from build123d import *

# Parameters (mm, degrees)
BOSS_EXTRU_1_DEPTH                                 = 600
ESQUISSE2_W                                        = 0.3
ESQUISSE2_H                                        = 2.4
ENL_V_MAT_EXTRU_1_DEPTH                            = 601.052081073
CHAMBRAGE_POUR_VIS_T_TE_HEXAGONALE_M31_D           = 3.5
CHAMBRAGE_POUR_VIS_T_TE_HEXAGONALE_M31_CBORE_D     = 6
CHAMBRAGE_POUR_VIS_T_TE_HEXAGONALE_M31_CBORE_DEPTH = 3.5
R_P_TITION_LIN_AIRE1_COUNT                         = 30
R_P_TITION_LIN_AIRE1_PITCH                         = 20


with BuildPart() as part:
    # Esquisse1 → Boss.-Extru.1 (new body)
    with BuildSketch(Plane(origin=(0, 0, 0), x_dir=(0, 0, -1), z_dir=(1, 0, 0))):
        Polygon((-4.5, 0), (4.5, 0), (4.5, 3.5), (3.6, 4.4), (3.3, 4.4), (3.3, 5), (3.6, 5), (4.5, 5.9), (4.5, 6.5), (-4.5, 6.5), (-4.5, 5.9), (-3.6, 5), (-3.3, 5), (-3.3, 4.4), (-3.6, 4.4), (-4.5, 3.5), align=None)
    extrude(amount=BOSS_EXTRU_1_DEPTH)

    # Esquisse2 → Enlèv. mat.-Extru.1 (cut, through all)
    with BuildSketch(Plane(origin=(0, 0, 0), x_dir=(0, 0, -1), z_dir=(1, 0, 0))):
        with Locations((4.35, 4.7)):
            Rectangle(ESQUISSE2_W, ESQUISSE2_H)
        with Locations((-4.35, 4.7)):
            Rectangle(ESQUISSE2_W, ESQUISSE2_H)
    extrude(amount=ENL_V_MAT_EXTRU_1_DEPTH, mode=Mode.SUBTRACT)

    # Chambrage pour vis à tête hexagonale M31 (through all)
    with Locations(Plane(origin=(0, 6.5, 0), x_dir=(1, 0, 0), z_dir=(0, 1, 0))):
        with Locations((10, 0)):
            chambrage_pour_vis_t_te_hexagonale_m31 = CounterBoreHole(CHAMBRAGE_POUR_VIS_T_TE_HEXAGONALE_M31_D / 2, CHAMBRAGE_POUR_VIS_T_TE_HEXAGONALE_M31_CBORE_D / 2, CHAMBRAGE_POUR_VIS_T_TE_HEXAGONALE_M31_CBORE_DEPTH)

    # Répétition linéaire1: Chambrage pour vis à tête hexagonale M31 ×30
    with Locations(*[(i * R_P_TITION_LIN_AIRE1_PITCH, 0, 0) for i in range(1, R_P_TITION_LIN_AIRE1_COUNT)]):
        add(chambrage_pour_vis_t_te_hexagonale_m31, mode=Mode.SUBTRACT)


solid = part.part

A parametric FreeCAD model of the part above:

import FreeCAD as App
import Part
import Sketcher
Q = App.Units.Quantity

doc = App.newDocument("Part")
body = doc.addObject("PartDesign::Body", "Body")

sketch1 = body.newObject("Sketcher::SketchObject", "Sketch")
sketch1.AttachmentSupport = (doc.getObject("YZ_Plane"), [""])
sketch1.MapMode = "FlatFace"
sketch1.addGeometry([
    Part.LineSegment(App.Vector(0, 4.5, 0), App.Vector(0, -4.5, 0)),
    Part.LineSegment(App.Vector(0, -4.5, 0), App.Vector(3.5, -4.5, 0)),
    Part.LineSegment(App.Vector(3.5, -4.5, 0), App.Vector(4.4, -3.6, 0)),
    Part.LineSegment(App.Vector(4.4, -3.6, 0), App.Vector(4.4, -3.3, 0)),
    Part.LineSegment(App.Vector(4.4, -3.3, 0), App.Vector(5, -3.3, 0)),
    Part.LineSegment(App.Vector(5, -3.3, 0), App.Vector(5, -3.6, 0)),
    Part.LineSegment(App.Vector(5, -3.6, 0), App.Vector(5.9, -4.5, 0)),
    Part.LineSegment(App.Vector(5.9, -4.5, 0), App.Vector(6.5, -4.5, 0)),
    Part.LineSegment(App.Vector(6.5, -4.5, 0), App.Vector(6.5, 4.5, 0)),
    Part.LineSegment(App.Vector(6.5, 4.5, 0), App.Vector(5.9, 4.5, 0)),
    Part.LineSegment(App.Vector(5.9, 4.5, 0), App.Vector(5, 3.6, 0)),
    Part.LineSegment(App.Vector(5, 3.6, 0), App.Vector(5, 3.3, 0)),
    Part.LineSegment(App.Vector(5, 3.3, 0), App.Vector(4.4, 3.3, 0)),
    Part.LineSegment(App.Vector(4.4, 3.3, 0), App.Vector(4.4, 3.6, 0)),
    Part.LineSegment(App.Vector(4.4, 3.6, 0), App.Vector(3.5, 4.5, 0)),
    Part.LineSegment(App.Vector(3.5, 4.5, 0), App.Vector(0, 4.5, 0)),
], False)
sketch1.addConstraint([
    Sketcher.Constraint("Coincident", 0, 2, 1, 1),
    Sketcher.Constraint("Coincident", 1, 2, 2, 1),
    Sketcher.Constraint("Coincident", 2, 2, 3, 1),
    Sketcher.Constraint("Coincident", 3, 2, 4, 1),
    Sketcher.Constraint("Coincident", 4, 2, 5, 1),
    Sketcher.Constraint("Coincident", 5, 2, 6, 1),
    Sketcher.Constraint("Coincident", 6, 2, 7, 1),
    Sketcher.Constraint("Coincident", 7, 2, 8, 1),
    Sketcher.Constraint("Coincident", 8, 2, 9, 1),
    Sketcher.Constraint("Coincident", 9, 2, 10, 1),
    Sketcher.Constraint("Coincident", 10, 2, 11, 1),
    Sketcher.Constraint("Coincident", 11, 2, 12, 1),
    Sketcher.Constraint("Coincident", 12, 2, 13, 1),
    Sketcher.Constraint("Coincident", 13, 2, 14, 1),
    Sketcher.Constraint("Coincident", 14, 2, 15, 1),
    Sketcher.Constraint("Coincident", 15, 2, 0, 1),
    Sketcher.Constraint("Vertical", 0),
    Sketcher.Constraint("Horizontal", 1),
    Sketcher.Constraint("Vertical", 3),
    Sketcher.Constraint("Horizontal", 4),
    Sketcher.Constraint("Vertical", 5),
    Sketcher.Constraint("Horizontal", 7),
    Sketcher.Constraint("Vertical", 8),
    Sketcher.Constraint("Horizontal", 9),
    Sketcher.Constraint("Vertical", 11),
    Sketcher.Constraint("Horizontal", 12),
    Sketcher.Constraint("Vertical", 13),
    Sketcher.Constraint("Horizontal", 15),
    Sketcher.Constraint("Symmetric", 0, 2, 15, 2, -1, 1),
    Sketcher.Constraint("Symmetric", 6, 2, 9, 2, -1),
    Sketcher.Constraint("Symmetric", 5, 2, 10, 2, -1),
    Sketcher.Constraint("Symmetric", 3, 2, 12, 2, -1),
    Sketcher.Constraint("Perpendicular", 2, 6),
    Sketcher.Constraint("Perpendicular", 6, 10),
    Sketcher.Constraint("Perpendicular", 10, 14),
    Sketcher.Constraint("Horizontal", 2, 2, 5, 2),
    Sketcher.Constraint("Horizontal", 1, 2, 6, 2),
    Sketcher.Constraint("Horizontal", 10, 2, 13, 2),
    Sketcher.Constraint("Equal", 4, 7),
    Sketcher.Constraint("DistanceY", 0, 2, 0, 1, Q("9 mm")),
    Sketcher.Constraint("DistanceX", 1, 1, 1, 2, Q("3.5 mm")),
    Sketcher.Constraint("DistanceX", 4, 1, 4, 2, Q("0.6 mm")),
    Sketcher.Constraint("DistanceY", 3, 1, 3, 2, Q("0.3 mm")),
    Sketcher.Constraint("DistanceX", -1, 1, 4, 2, Q("5 mm")),
])
pad1 = body.newObject("PartDesign::Pad", "Pad")
pad1.Profile = sketch1
pad1.Length = 600

sketch2 = body.newObject("Sketcher::SketchObject", "Sketch001")
sketch2.AttachmentSupport = (doc.getObject("YZ_Plane"), [""])
sketch2.MapMode = "FlatFace"
sketch2.addGeometry([
    Part.LineSegment(App.Vector(5.9, -4.2, 0), App.Vector(3.5, -4.2, 0)),
    Part.LineSegment(App.Vector(3.5, -4.2, 0), App.Vector(3.5, -4.5, 0)),
    Part.LineSegment(App.Vector(3.5, -4.5, 0), App.Vector(5.9, -4.5, 0)),
    Part.LineSegment(App.Vector(5.9, -4.5, 0), App.Vector(5.9, -4.2, 0)),
    Part.LineSegment(App.Vector(5.9, 4.5, 0), App.Vector(3.5, 4.5, 0)),
    Part.LineSegment(App.Vector(3.5, 4.5, 0), App.Vector(3.5, 4.2, 0)),
    Part.LineSegment(App.Vector(3.5, 4.2, 0), App.Vector(5.9, 4.2, 0)),
    Part.LineSegment(App.Vector(5.9, 4.2, 0), App.Vector(5.9, 4.5, 0)),
], False)
sketch2.addConstraint([
    Sketcher.Constraint("Coincident", 0, 2, 1, 1),
    Sketcher.Constraint("Coincident", 1, 2, 2, 1),
    Sketcher.Constraint("Coincident", 2, 2, 3, 1),
    Sketcher.Constraint("Coincident", 3, 2, 0, 1),
    Sketcher.Constraint("Coincident", 4, 2, 5, 1),
    Sketcher.Constraint("Coincident", 5, 2, 6, 1),
    Sketcher.Constraint("Coincident", 6, 2, 7, 1),
    Sketcher.Constraint("Coincident", 7, 2, 4, 1),
    Sketcher.Constraint("Horizontal", 0),
    Sketcher.Constraint("Vertical", 1),
    Sketcher.Constraint("Horizontal", 2),
    Sketcher.Constraint("Vertical", 3),
    Sketcher.Constraint("Horizontal", 4),
    Sketcher.Constraint("Vertical", 5),
    Sketcher.Constraint("Horizontal", 6),
    Sketcher.Constraint("Vertical", 7),
    Sketcher.Constraint("Symmetric", 1, 2, 4, 2, -1),
    Sketcher.Constraint("Symmetric", 3, 2, 6, 2, -1),
    Sketcher.Constraint("DistanceX", 0, 2, 0, 1, Q("2.4 mm")),
    Sketcher.Constraint("DistanceY", 1, 2, 1, 1, Q("0.3 mm")),
    Sketcher.Constraint("DistanceY", 1, 2, 4, 2, Q("9 mm")),
    Sketcher.Constraint("DistanceX", -1, 1, 0, 2, Q("3.5 mm")),
])
pocket1 = body.newObject("PartDesign::Pocket", "Pocket")
pocket1.Profile = sketch2
pocket1.Type = "ThroughAll"
pocket1.Reversed = True

sketch3 = body.newObject("Sketcher::SketchObject", "Sketch002")
sketch3.AttachmentSupport = (doc.getObject("XZ_Plane"), [""])
sketch3.MapMode = "FlatFace"
sketch3.AttachmentOffset = App.Placement(App.Vector(0, 0, -6.5), App.Rotation())
sketch3.addGeometry(Part.Circle(App.Vector(10, 0, 0), App.Vector(0, 0, 1), 1.75), False)
sketch3.addConstraint([
    Sketcher.Constraint("PointOnObject", 0, 3, -1),
    Sketcher.Constraint("Diameter", 0, Q("3.5 mm")),
    Sketcher.Constraint("DistanceX", -1, 1, 0, 3, Q("10 mm")),
])
doc.recompute()
hole = body.newObject("PartDesign::Hole", "Hole")
hole.Profile = sketch3
hole.ThreadType = "None"
hole.Diameter = 3.5
hole.DepthType = "ThroughAll"
hole.HoleCutType = "Counterbore"
hole.HoleCutDiameter = 6
hole.HoleCutDepth = 3.5
hole.Reversed = True
doc.recompute()

linearpattern = body.newObject("PartDesign::LinearPattern", "LinearPattern")
linearpattern.Originals = [hole]
linearpattern.Direction = (doc.getObject("X_Axis"), [""])
linearpattern.Mode = "offset"
linearpattern.Offset = 20
linearpattern.Occurrences = 30
body.Tip = linearpattern

doc.recompute()
